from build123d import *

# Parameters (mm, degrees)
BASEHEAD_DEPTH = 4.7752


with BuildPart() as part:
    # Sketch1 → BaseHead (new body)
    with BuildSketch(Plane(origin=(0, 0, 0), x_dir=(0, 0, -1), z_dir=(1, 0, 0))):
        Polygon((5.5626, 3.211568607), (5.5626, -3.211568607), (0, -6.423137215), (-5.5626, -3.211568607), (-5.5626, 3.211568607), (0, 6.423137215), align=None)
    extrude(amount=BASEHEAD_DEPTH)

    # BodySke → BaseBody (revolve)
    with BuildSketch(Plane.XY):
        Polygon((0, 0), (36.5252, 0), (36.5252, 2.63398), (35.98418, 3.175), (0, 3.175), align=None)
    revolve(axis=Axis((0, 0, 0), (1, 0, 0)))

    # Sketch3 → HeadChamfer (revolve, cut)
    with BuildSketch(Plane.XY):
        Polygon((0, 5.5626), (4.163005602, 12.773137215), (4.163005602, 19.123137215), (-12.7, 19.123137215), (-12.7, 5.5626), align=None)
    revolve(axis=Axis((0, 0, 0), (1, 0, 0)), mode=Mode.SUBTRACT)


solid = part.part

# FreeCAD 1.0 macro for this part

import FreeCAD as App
import Part
import Sketcher

V = App.Vector
Q = App.Units.Quantity

doc = App.newDocument("Part")
body = doc.addObject("PartDesign::Body", "Body")

sketch1 = body.newObject("Sketcher::SketchObject", "Sketch")
sketch1.AttachmentSupport = (doc.getObject("YZ_Plane"), [""])
sketch1.MapMode = "FlatFace"
sketch1.addGeometry([
    Part.LineSegment(V(-3, -6, 0), V(3, -6, 0)),
    Part.LineSegment(V(3, -6, 0), V(6, 0, 0)),
    Part.LineSegment(V(6, 0, 0), V(3, 6, 0)),
    Part.LineSegment(V(3, 6, 0), V(-3, 6, 0)),
    Part.LineSegment(V(-3, 6, 0), V(-6, 0, 0)),
    Part.LineSegment(V(-6, 0, 0), V(-3, -6, 0)),
], False)
sketch1.addConstraint([
    Sketcher.Constraint("Coincident", 0, 2, 1, 1),
    Sketcher.Constraint("Coincident", 1, 2, 2, 1),
    Sketcher.Constraint("Coincident", 2, 2, 3, 1),
    Sketcher.Constraint("Coincident", 3, 2, 4, 1),
    Sketcher.Constraint("Coincident", 4, 2, 5, 1),
    Sketcher.Constraint("Coincident", 5, 2, 0, 1),
    Sketcher.Constraint("Horizontal", 0),
    Sketcher.Constraint("Horizontal", 3),
    Sketcher.Constraint("Symmetric", 0, 2, 3, 2, -1, 1),
    Sketcher.Constraint("Symmetric", 1, 2, 4, 2, -1, 1),
    Sketcher.Constraint("PointOnObject", 1, 2, -1),
    Sketcher.Constraint("Parallel", 2, 5),
    Sketcher.Constraint("Vertical", 0, 2, 2, 2),
    Sketcher.Constraint("Angle", 1, Q("60 deg")),
    Sketcher.Constraint("DistanceY", 0, 2, -1, 1, Q("0.219 in")),
    Sketcher.Constraint("DistanceX", 0, 1, 0, 2, 6.423137),
])
pad1 = body.newObject("PartDesign::Pad", "Pad")
pad1.Profile = sketch1
pad1.Length = Q("0.188 in")

sketch2 = body.newObject("Sketcher::SketchObject", "Sketch001")
sketch2.AttachmentSupport = (doc.getObject("XY_Plane"), [""])
sketch2.MapMode = "FlatFace"
sketch2.addGeometry([
    Part.LineSegment(V(0, 0, 0), V(36.5, 0, 0)),
    Part.LineSegment(V(36.5, 0, 0), V(36.5, 2.6, 0)),
    Part.LineSegment(V(36.5, 2.6, 0), V(36, 3.2, 0)),
    Part.LineSegment(V(36, 3.2, 0), V(0, 3.2, 0)),
    Part.LineSegment(V(0, 3.2, 0), V(0, 0, 0)),
], False)
sketch2.addConstraint([
    Sketcher.Constraint("Coincident", 0, 2, 1, 1),
    Sketcher.Constraint("Coincident", 1, 2, 2, 1),
    Sketcher.Constraint("Coincident", 2, 2, 3, 1),
    Sketcher.Constraint("Coincident", 3, 2, 4, 1),
    Sketcher.Constraint("Coincident", 4, 2, 0, 1),
    Sketcher.Constraint("Horizontal", 0),
    Sketcher.Constraint("Vertical", 1),
    Sketcher.Constraint("Horizontal", 3),
    Sketcher.Constraint("Vertical", 4),
    Sketcher.Constraint("Coincident", 4, 2, -1, 1),
    Sketcher.Constraint("Angle", 2, Q("135 deg")),
    Sketcher.Constraint("DistanceX", 0, 1, 0, 2, Q("1.438 in")),
    Sketcher.Constraint("DistanceY", 4, 2, 4, 1, Q("0.125 in")),
    Sketcher.Constraint("DistanceX", 3, 2, 3, 1, Q("1.4167 in")),
])
revolution = body.newObject("PartDesign::Revolution", "Revolution")
revolution.Profile = sketch2
revolution.ReferenceAxis = (sketch2, ["H_Axis"])
revolution.Angle = 360

sketch3 = body.newObject("Sketcher::SketchObject", "Sketch002")
sketch3.AttachmentSupport = (doc.getObject("XY_Plane"), [""])
sketch3.MapMode = "FlatFace"
sketch3.addGeometry([
    Part.LineSegment(V(0, 6, 0), V(4, 13, 0)),
    Part.LineSegment(V(4, 13, 0), V(4, 19, 0)),
    Part.LineSegment(V(4, 19, 0), V(-13, 19, 0)),
    Part.LineSegment(V(-13, 19, 0), V(-13, 6, 0)),
    Part.LineSegment(V(-13, 6, 0), V(0, 6, 0)),
], False)
sketch3.addConstraint([
    Sketcher.Constraint("Coincident", 0, 2, 1, 1),
    Sketcher.Constraint("Coincident", 1, 2, 2, 1),
    Sketcher.Constraint("Coincident", 2, 2, 3, 1),
    Sketcher.Constraint("Coincident", 3, 2, 4, 1),
    Sketcher.Constraint("Coincident", 4, 2, 0, 1),
    Sketcher.Constraint("Vertical", 1),
    Sketcher.Constraint("Horizontal", 2),
    Sketcher.Constraint("Vertical", 3),
    Sketcher.Constraint("Horizontal", 4),
    Sketcher.Constraint("PointOnObject", 4, 2, -2),
    Sketcher.Constraint("DistanceX", 4, 1, 4, 2, Q("0.5 in")),
    Sketcher.Constraint("Angle", 0, Q("60 deg")),
    Sketcher.Constraint("DistanceY", 1, 1, 1, 2, Q("0.25 in")),
    Sketcher.Constraint("DistanceY", -1, 1, 3, 2, Q("0.219 in")),
    Sketcher.Constraint("Distance", 0, 8.326011),
])
groove = body.newObject("PartDesign::Groove", "Groove")
groove.Profile = sketch3
groove.ReferenceAxis = (sketch3, ["H_Axis"])
groove.Angle = 360

doc.recompute()
